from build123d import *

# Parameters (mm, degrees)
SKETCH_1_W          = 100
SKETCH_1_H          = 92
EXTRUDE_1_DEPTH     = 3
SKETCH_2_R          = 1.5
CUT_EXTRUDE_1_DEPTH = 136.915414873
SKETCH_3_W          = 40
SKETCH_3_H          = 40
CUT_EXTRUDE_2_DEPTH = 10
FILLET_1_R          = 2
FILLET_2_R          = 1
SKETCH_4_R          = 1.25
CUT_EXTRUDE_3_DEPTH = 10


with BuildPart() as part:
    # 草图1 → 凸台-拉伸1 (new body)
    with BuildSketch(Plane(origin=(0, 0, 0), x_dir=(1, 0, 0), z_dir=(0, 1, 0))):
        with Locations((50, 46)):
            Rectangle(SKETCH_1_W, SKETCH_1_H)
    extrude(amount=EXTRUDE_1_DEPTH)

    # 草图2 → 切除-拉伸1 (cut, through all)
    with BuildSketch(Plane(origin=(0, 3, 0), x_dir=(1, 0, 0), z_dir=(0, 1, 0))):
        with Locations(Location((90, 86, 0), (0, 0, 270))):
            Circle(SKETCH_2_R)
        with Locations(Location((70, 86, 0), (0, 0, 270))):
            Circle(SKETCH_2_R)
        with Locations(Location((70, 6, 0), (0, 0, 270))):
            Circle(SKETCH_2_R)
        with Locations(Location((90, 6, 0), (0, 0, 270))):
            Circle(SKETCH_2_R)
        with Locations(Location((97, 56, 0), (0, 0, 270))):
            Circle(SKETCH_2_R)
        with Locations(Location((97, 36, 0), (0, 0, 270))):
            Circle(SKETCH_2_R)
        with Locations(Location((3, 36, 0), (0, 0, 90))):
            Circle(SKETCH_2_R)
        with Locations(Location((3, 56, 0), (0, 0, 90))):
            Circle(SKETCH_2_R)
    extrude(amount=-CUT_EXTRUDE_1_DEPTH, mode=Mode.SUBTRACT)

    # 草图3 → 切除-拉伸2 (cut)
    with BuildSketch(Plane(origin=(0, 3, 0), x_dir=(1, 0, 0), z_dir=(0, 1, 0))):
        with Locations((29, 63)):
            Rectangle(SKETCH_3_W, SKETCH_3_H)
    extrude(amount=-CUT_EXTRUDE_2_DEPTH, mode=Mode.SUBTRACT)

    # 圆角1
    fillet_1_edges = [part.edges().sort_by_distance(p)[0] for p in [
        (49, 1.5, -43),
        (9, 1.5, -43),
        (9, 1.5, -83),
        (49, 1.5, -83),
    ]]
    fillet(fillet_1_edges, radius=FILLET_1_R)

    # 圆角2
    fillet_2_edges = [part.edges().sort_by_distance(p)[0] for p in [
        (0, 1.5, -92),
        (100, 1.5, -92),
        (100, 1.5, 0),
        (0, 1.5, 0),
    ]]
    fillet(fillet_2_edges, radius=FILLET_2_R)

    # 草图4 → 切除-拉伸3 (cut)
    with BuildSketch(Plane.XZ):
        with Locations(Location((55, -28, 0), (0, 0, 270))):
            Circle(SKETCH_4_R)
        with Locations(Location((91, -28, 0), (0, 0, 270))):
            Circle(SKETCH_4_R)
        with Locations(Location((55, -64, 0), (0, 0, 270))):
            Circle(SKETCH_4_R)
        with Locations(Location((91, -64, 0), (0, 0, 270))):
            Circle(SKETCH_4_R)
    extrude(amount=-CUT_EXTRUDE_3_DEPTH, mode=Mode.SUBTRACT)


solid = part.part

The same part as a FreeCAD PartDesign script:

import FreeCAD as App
import Part
import Sketcher
from FreeCAD import Vector
Q = App.Units.Quantity


def edges_at(feature, points):
    """Names of the edges that pass closest to the given points."""
    edges = feature.Shape.Edges
    near = lambda p: min(range(len(edges)), key=lambda i: edges[i].distToShape(Part.Vertex(*p))[0])
    return sorted({f"Edge{near(p) + 1}" for p in points})

doc = App.newDocument("Part")
body = doc.addObject("PartDesign::Body", "Body")

sketch1 = body.newObject("Sketcher::SketchObject", "Sketch")
sketch1.AttachmentSupport = (doc.getObject("XZ_Plane"), [""])
sketch1.MapMode = "FlatFace"
sketch1.addGeometry([
    Part.LineSegment(Vector(0, -92, 0), Vector(0, 0, 0)),
    Part.LineSegment(Vector(0, 0, 0), Vector(100, 0, 0)),
    Part.LineSegment(Vector(100, 0, 0), Vector(100, -92, 0)),
    Part.LineSegment(Vector(100, -92, 0), Vector(0, -92, 0)),
], False)
sketch1.addConstraint([
    Sketcher.Constraint("Coincident", 0, 2, 1, 1),
    Sketcher.Constraint("Coincident", 1, 2, 2, 1),
    Sketcher.Constraint("Coincident", 2, 2, 3, 1),
    Sketcher.Constraint("Coincident", 3, 2, 0, 1),
    Sketcher.Constraint("Vertical", 0),
    Sketcher.Constraint("Horizontal", 1),
    Sketcher.Constraint("Vertical", 2),
    Sketcher.Constraint("Horizontal", 3),
    Sketcher.Constraint("Coincident", 0, 2, -1, 1),
    Sketcher.Constraint("DistanceX", 1, 1, 1, 2, Q("100 mm")),
    Sketcher.Constraint("DistanceY", 0, 1, 0, 2, Q("92 mm")),
])
pad1 = body.newObject("PartDesign::Pad", "Pad")
pad1.Profile = sketch1
pad1.Length = 3
pad1.Reversed = True

sketch2 = body.newObject("Sketcher::SketchObject", "Sketch001")
sketch2.AttachmentSupport = (doc.getObject("XZ_Plane"), [""])
sketch2.MapMode = "FlatFace"
sketch2.AttachmentOffset = App.Placement(Vector(0, 0, -3), App.Rotation())
sketch2.addGeometry([
    Part.Circle(Vector(90, -86, 0), Vector(0, 0, 1), 1.5),
    Part.Circle(Vector(70, -86, 0), Vector(0, 0, 1), 1.5),
    Part.Circle(Vector(70, -6, 0), Vector(0, 0, 1), 1.5),
    Part.Circle(Vector(90, -6, 0), Vector(0, 0, 1), 1.5),
    Part.Circle(Vector(97, -56, 0), Vector(0, 0, 1), 1.5),
    Part.Circle(Vector(97, -36, 0), Vector(0, 0, 1), 1.5),
    Part.Circle(Vector(3, -36, 0), Vector(0, 0, 1), 1.5),
    Part.Circle(Vector(3, -56, 0), Vector(0, 0, 1), 1.5),
], False)
sketch2.addConstraint([
    Sketcher.Constraint("Equal", 0, 1),
    Sketcher.Constraint("Equal", 1, 2),
    Sketcher.Constraint("Equal", 2, 3),
    Sketcher.Constraint("Equal", 3, 4),
    Sketcher.Constraint("Equal", 4, 5),
    Sketcher.Constraint("Equal", 5, 6),
    Sketcher.Constraint("Equal", 6, 7),
    Sketcher.Constraint("Horizontal", 0, 3, 1, 3),
    Sketcher.Constraint("Horizontal", 2, 3, 3, 3),
    Sketcher.Constraint("Horizontal", 5, 3, 6, 3),
    Sketcher.Constraint("Horizontal", 4, 3, 7, 3),
    Sketcher.Constraint("Vertical", 1, 3, 2, 3),
    Sketcher.Constraint("Vertical", 0, 3, 3, 3),
    Sketcher.Constraint("Vertical", 4, 3, 5, 3),
    Sketcher.Constraint("Vertical", 6, 3, 7, 3),
    Sketcher.Constraint("Diameter", 0, Q("3 mm")),
    Sketcher.Constraint("DistanceX", -1, 1, 0, 3, Q("90 mm")),
    Sketcher.Constraint("DistanceY", 0, 3, -1, 1, Q("86 mm")),
    Sketcher.Constraint("DistanceX", -1, 1, 1, 3, Q("70 mm")),
    Sketcher.Constraint("DistanceY", 2, 3, -1, 1, Q("6 mm")),
    Sketcher.Constraint("DistanceX", -1, 1, 4, 3, Q("97 mm")),
    Sketcher.Constraint("DistanceY", 4, 3, -1, 1, Q("56 mm")),
    Sketcher.Constraint("DistanceY", 5, 3, -1, 1, Q("36 mm")),
    Sketcher.Constraint("DistanceX", -1, 1, 6, 3, Q("3 mm")),
])
pocket1 = body.newObject("PartDesign::Pocket", "Pocket")
pocket1.Profile = sketch2
pocket1.Type = "ThroughAll"
pocket1.Reversed = True

sketch3 = body.newObject("Sketcher::SketchObject", "Sketch002")
sketch3.AttachmentSupport = (doc.getObject("XZ_Plane"), [""])
sketch3.MapMode = "FlatFace"
sketch3.AttachmentOffset = App.Placement(Vector(0, 0, -3), App.Rotation())
sketch3.addGeometry([
    Part.LineSegment(Vector(9, -83, 0), Vector(9, -43, 0)),
    Part.LineSegment(Vector(9, -43, 0), Vector(49, -43, 0)),
    Part.LineSegment(Vector(49, -43, 0), Vector(49, -83, 0)),
    Part.LineSegment(Vector(49, -83, 0), Vector(9, -83, 0)),
], False)
sketch3.addConstraint([
    Sketcher.Constraint("Coincident", 0, 2, 1, 1),
    Sketcher.Constraint("Coincident", 1, 2, 2, 1),
    Sketcher.Constraint("Coincident", 2, 2, 3, 1),
    Sketcher.Constraint("Coincident", 3, 2, 0, 1),
    Sketcher.Constraint("Vertical", 0),
    Sketcher.Constraint("Horizontal", 1),
    Sketcher.Constraint("Vertical", 2),
    Sketcher.Constraint("Horizontal", 3),
    Sketcher.Constraint("Equal", 3, 0),
    Sketcher.Constraint("DistanceX", 1, 1, 1, 2, Q("40 mm")),
    Sketcher.Constraint("DistanceX", -1, 1, 0, 2, Q("9 mm")),
    Sketcher.Constraint("DistanceY", 0, 2, -1, 1, Q("43 mm")),
])
pocket2 = body.newObject("PartDesign::Pocket", "Pocket001")
pocket2.Profile = sketch3
pocket2.Length = 10
pocket2.Reversed = True
doc.recompute()

fillet = body.newObject("PartDesign::Fillet", "Fillet")
fillet.Base = (pocket2, edges_at(pocket2, [
    (49, 1.5, -43),
    (9, 1.5, -43),
    (9, 1.5, -83),
    (49, 1.5, -83),
]))
fillet.Radius = 2
doc.recompute()

fillet2 = body.newObject("PartDesign::Fillet", "Fillet001")
fillet2.Base = (fillet, edges_at(fillet, [
    (0, 1.5, -92),
    (100, 1.5, -92),
    (100, 1.5, 0),
    (0, 1.5, 0),
]))
fillet2.Radius = 1

sketch4 = body.newObject("Sketcher::SketchObject", "Sketch003")
sketch4.AttachmentSupport = (doc.getObject("XZ_Plane"), [""])
sketch4.MapMode = "FlatFace"
sketch4.addGeometry([
    Part.Circle(Vector(55, -28, 0), Vector(0, 0, 1), 1.25),
    Part.Circle(Vector(91, -28, 0), Vector(0, 0, 1), 1.25),
    Part.Circle(Vector(55, -64, 0), Vector(0, 0, 1), 1.25),
    Part.Circle(Vector(91, -64, 0), Vector(0, 0, 1), 1.25),
], False)
sketch4.addConstraint([
    Sketcher.Constraint("Equal", 0, 1),
    Sketcher.Constraint("Equal", 1, 2),
    Sketcher.Constraint("Equal", 2, 3),
    Sketcher.Constraint("Horizontal", 0, 3, 1, 3),
    Sketcher.Constraint("Horizontal", 2, 3, 3, 3),
    Sketcher.Constraint("Vertical", 0, 3, 2, 3),
    Sketcher.Constraint("Vertical", 1, 3, 3, 3),
    Sketcher.Constraint("Diameter", 0, Q("2.5 mm")),
    Sketcher.Constraint("DistanceX", -1, 1, 0, 3, Q("55 mm")),
    Sketcher.Constraint("DistanceY", 0, 3, -1, 1, Q("28 mm")),
    Sketcher.Constraint("DistanceX", -1, 1, 1, 3, Q("91 mm")),
    Sketcher.Constraint("DistanceY", 2, 3, -1, 1, Q("64 mm")),
])
pocket3 = body.newObject("PartDesign::Pocket", "Pocket002")
pocket3.Profile = sketch4
pocket3.Length = 10

doc.recompute()
